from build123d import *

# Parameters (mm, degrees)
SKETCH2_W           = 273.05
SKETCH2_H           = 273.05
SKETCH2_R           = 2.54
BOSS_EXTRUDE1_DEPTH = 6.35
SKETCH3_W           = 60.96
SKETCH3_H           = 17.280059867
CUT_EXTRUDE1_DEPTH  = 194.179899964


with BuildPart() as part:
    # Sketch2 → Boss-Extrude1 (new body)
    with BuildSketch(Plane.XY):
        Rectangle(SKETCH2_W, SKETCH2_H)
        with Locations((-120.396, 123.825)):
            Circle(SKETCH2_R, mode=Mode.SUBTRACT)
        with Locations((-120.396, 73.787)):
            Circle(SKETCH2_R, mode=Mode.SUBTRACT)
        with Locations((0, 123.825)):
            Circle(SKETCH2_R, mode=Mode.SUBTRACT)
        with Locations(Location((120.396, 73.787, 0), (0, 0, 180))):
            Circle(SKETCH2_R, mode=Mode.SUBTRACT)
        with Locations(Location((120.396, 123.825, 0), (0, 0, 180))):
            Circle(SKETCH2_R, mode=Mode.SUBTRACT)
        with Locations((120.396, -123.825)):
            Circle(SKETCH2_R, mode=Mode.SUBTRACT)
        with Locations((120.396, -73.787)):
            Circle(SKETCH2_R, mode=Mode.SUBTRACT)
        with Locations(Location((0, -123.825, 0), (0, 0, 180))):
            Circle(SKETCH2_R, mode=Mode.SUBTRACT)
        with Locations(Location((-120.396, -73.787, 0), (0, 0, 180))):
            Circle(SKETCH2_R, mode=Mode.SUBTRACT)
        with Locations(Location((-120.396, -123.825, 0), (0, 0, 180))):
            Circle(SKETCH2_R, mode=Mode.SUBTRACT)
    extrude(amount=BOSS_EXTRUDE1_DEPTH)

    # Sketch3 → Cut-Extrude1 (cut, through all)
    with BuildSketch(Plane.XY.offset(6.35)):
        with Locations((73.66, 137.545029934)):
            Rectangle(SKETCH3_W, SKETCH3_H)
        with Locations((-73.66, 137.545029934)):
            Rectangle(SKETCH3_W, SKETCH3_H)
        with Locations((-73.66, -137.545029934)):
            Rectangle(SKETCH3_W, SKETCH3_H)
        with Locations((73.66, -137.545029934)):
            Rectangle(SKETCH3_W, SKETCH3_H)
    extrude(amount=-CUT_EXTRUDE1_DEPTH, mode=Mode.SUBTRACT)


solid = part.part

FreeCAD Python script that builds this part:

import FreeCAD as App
import Part
import Sketcher
from FreeCAD import Vector
Q = App.Units.Quantity

doc = App.newDocument("Part")
body = doc.addObject("PartDesign::Body", "Body")

sketch1 = doc.addObject("Sketcher::SketchObject", "Sketch")
body.addObject(sketch1)
sketch1.AttachmentSupport = (doc.XY_Plane, [""])
sketch1.MapMode = "FlatFace"
sketch1.addGeometry([
    Part.LineSegment(Vector(-136.5, 136.5, 0), Vector(-136.5, -136.5, 0)),
    Part.LineSegment(Vector(-136.5, -136.5, 0), Vector(136.5, -136.5, 0)),
    Part.LineSegment(Vector(136.5, -136.5, 0), Vector(136.5, 136.5, 0)),
    Part.LineSegment(Vector(136.5, 136.5, 0), Vector(-136.5, 136.5, 0)),
    Part.Circle(Vector(-120.4, -123.8, 0), Vector(0, 0, 1), 2.5),
    Part.Circle(Vector(-120.4, -73.8, 0), Vector(0, 0, 1), 2.5),
    Part.Circle(Vector(0, -123.8, 0), Vector(0, 0, 1), 2.5),
    Part.Circle(Vector(120.4, -123.8, 0), Vector(0, 0, 1), 2.5),
    Part.Circle(Vector(120.4, -73.8, 0), Vector(0, 0, 1), 2.5),
    Part.Circle(Vector(-120.4, 73.8, 0), Vector(0, 0, 1), 2.5),
    Part.Circle(Vector(-120.4, 123.8, 0), Vector(0, 0, 1), 2.5),
    Part.Circle(Vector(0, 123.8, 0), Vector(0, 0, 1), 2.5),
    Part.Circle(Vector(120.4, 73.8, 0), Vector(0, 0, 1), 2.5),
    Part.Circle(Vector(120.4, 123.8, 0), Vector(0, 0, 1), 2.5),
], False)
sketch1.addConstraint([
    Sketcher.Constraint("Coincident", 0, 2, 1, 1),
    Sketcher.Constraint("Coincident", 1, 2, 2, 1),
    Sketcher.Constraint("Coincident", 2, 2, 3, 1),
    Sketcher.Constraint("Coincident", 3, 2, 0, 1),
    Sketcher.Constraint("Vertical", 0),
    Sketcher.Constraint("Horizontal", 1),
    Sketcher.Constraint("Vertical", 2),
    Sketcher.Constraint("Horizontal", 3),
    Sketcher.Constraint("Equal", 4, 5),
    Sketcher.Constraint("Equal", 5, 6),
    Sketcher.Constraint("Equal", 6, 7),
    Sketcher.Constraint("Equal", 7, 8),
    Sketcher.Constraint("Equal", 8, 9),
    Sketcher.Constraint("Equal", 9, 10),
    Sketcher.Constraint("Equal", 10, 11),
    Sketcher.Constraint("Equal", 11, 12),
    Sketcher.Constraint("Equal", 12, 13),
    Sketcher.Constraint("Symmetric", 8, 3, 9, 3, -1, 1),
    Sketcher.Constraint("Symmetric", 7, 3, 10, 3, -1, 1),
    Sketcher.Constraint("Symmetric", 6, 3, 11, 3, -1, 1),
    Sketcher.Constraint("Symmetric", 5, 3, 12, 3, -1, 1),
    Sketcher.Constraint("Symmetric", 4, 3, 13, 3, -1, 1),
    Sketcher.Constraint("Symmetric", 0, 2, 2, 2, -1, 1),
    Sketcher.Constraint("Symmetric", 4, 3, 7, 3, -2),
    Sketcher.Constraint("Symmetric", 5, 3, 8, 3, -2),
    Sketcher.Constraint("PointOnObject", 6, 3, -2),
    Sketcher.Constraint("Horizontal", 4, 3, 6, 3),
    Sketcher.Constraint("Vertical", 4, 3, 5, 3),
    Sketcher.Constraint("Equal", 3, 0),
    Sketcher.Constraint("Diameter", 4, Q("0.2 in")),
    Sketcher.Constraint("DistanceX", 1, 1, 1, 2, Q("10.75 in")),
    Sketcher.Constraint("DistanceY", 0, 2, 4, 3, Q("0.5 in")),
    Sketcher.Constraint("DistanceX", 4, 3, -1, 1, Q("4.74 in")),
    Sketcher.Constraint("DistanceY", 4, 3, 5, 3, Q("1.97 in")),
])
pad1 = doc.addObject("PartDesign::Pad", "Pad")
body.addObject(pad1)
pad1.Profile = sketch1
pad1.Length = Q("0.25 in")

sketch2 = doc.addObject("Sketcher::SketchObject", "Sketch001")
body.addObject(sketch2)
sketch2.AttachmentSupport = (doc.XY_Plane, [""])
sketch2.MapMode = "FlatFace"
sketch2.AttachmentOffset = App.Placement(Vector(0, 0, 0.25 * 25.4), App.Rotation())
sketch2.addGeometry([
    Part.LineSegment(Vector(43, 146, 0), Vector(43, 129, 0)),
    Part.LineSegment(Vector(43, 129, 0), Vector(104, 129, 0)),
    Part.LineSegment(Vector(104, 129, 0), Vector(104, 146, 0)),
    Part.LineSegment(Vector(104, 146, 0), Vector(43, 146, 0)),
    Part.LineSegment(Vector(-104, 146, 0), Vector(-104, 129, 0)),
    Part.LineSegment(Vector(-104, 129, 0), Vector(-43, 129, 0)),
    Part.LineSegment(Vector(-43, 129, 0), Vector(-43, 146, 0)),
    Part.LineSegment(Vector(-43, 146, 0), Vector(-104, 146, 0)),
    Part.LineSegment(Vector(-104, -129, 0), Vector(-104, -146, 0)),
    Part.LineSegment(Vector(-104, -146, 0), Vector(-43, -146, 0)),
    Part.LineSegment(Vector(-43, -146, 0), Vector(-43, -129, 0)),
    Part.LineSegment(Vector(-43, -129, 0), Vector(-104, -129, 0)),
    Part.LineSegment(Vector(43, -129, 0), Vector(43, -146, 0)),
    Part.LineSegment(Vector(43, -146, 0), Vector(104, -146, 0)),
    Part.LineSegment(Vector(104, -146, 0), Vector(104, -129, 0)),
    Part.LineSegment(Vector(104, -129, 0), Vector(43, -129, 0)),
], False)
sketch2.addConstraint([
    Sketcher.Constraint("Coincident", 0, 2, 1, 1),
    Sketcher.Constraint("Coincident", 1, 2, 2, 1),
    Sketcher.Constraint("Coincident", 2, 2, 3, 1),
    Sketcher.Constraint("Coincident", 3, 2, 0, 1),
    Sketcher.Constraint("Coincident", 4, 2, 5, 1),
    Sketcher.Constraint("Coincident", 5, 2, 6, 1),
    Sketcher.Constraint("Coincident", 6, 2, 7, 1),
    Sketcher.Constraint("Coincident", 7, 2, 4, 1),
    Sketcher.Constraint("Coincident", 8, 2, 9, 1),
    Sketcher.Constraint("Coincident", 9, 2, 10, 1),
    Sketcher.Constraint("Coincident", 10, 2, 11, 1),
    Sketcher.Constraint("Coincident", 11, 2, 8, 1),
    Sketcher.Constraint("Coincident", 12, 2, 13, 1),
    Sketcher.Constraint("Coincident", 13, 2, 14, 1),
    Sketcher.Constraint("Coincident", 14, 2, 15, 1),
    Sketcher.Constraint("Coincident", 15, 2, 12, 1),
    Sketcher.Constraint("Vertical", 0),
    Sketcher.Constraint("Horizontal", 1),
    Sketcher.Constraint("Vertical", 2),
    Sketcher.Constraint("Horizontal", 3),
    Sketcher.Constraint("Vertical", 4),
    Sketcher.Constraint("Horizontal", 5),
    Sketcher.Constraint("Vertical", 6),
    Sketcher.Constraint("Horizontal", 7),
    Sketcher.Constraint("Vertical", 8),
    Sketcher.Constraint("Horizontal", 9),
    Sketcher.Constraint("Vertical", 10),
    Sketcher.Constraint("Horizontal", 11),
    Sketcher.Constraint("Vertical", 12),
    Sketcher.Constraint("Horizontal", 13),
    Sketcher.Constraint("Vertical", 14),
    Sketcher.Constraint("Horizontal", 15),
    Sketcher.Constraint("Symmetric", 2, 2, 8, 2, -1, 1),
    Sketcher.Constraint("Symmetric", 0, 2, 10, 2, -1, 1),
    Sketcher.Constraint("Symmetric", 6, 2, 12, 2, -1, 1),
    Sketcher.Constraint("Symmetric", 4, 2, 14, 2, -1, 1),
    Sketcher.Constraint("Symmetric", 1, 2, 4, 2, -2),
    Sketcher.Constraint("Symmetric", 3, 2, 6, 2, -2),
    Sketcher.Constraint("DistanceX", 1, 1, 1, 2, Q("2.4 in")),
    Sketcher.Constraint("DistanceX", -1, 1, 0, 2, Q("1.7 in")),
    Sketcher.Constraint("DistanceY", 10, 2, 5, 2, Q("10.15 in")),
    Sketcher.Constraint("DistanceY", 0, 2, 0, 1, 17.28006),
])
pocket1 = doc.addObject("PartDesign::Pocket", "Pocket")
body.addObject(pocket1)
pocket1.Profile = sketch2
pocket1.Type = "ThroughAll"

doc.recompute()
